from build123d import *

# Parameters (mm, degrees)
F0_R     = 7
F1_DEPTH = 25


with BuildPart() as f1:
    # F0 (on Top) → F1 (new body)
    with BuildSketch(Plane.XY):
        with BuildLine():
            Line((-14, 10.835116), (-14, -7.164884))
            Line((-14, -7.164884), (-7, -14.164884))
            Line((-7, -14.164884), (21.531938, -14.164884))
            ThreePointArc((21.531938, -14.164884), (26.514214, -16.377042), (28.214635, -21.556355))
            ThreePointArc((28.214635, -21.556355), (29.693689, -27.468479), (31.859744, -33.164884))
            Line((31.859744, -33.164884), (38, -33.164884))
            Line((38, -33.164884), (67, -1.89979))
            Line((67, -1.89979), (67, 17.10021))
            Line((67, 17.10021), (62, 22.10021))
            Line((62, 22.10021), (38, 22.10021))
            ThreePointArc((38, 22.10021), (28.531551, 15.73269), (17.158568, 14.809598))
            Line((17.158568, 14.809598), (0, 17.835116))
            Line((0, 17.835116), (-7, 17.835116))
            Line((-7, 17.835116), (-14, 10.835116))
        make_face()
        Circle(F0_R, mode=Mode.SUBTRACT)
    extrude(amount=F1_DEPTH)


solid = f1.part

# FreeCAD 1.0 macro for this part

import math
import FreeCAD as App
import Part
import Sketcher

V = App.Vector
Q = App.Units.Quantity

doc = App.newDocument("Part")
body = doc.addObject("PartDesign::Body", "Body")

# Sketch on XY plane
sketch1 = doc.addObject("Sketcher::SketchObject", "Sketch")
body.addObject(sketch1)
sketch1.AttachmentSupport = (doc.XY_Plane, [""])
sketch1.MapMode = "FlatFace"
sketch1.addGeometry([
    Part.LineSegment(V(-14, 11, 0), V(-14, -7, 0)),  # 0
    Part.LineSegment(V(-14, -7, 0), V(-7, -14, 0)),  # 1
    Part.LineSegment(V(-7, -14, 0), V(22, -14, 0)),  # 2
    Part.ArcOfCircle(Part.Circle(V(22, -21, 0), V(0, 0, 1), 7), math.radians(-6), math.radians(90)),  # 3
    Part.ArcOfCircle(Part.Circle(V(79, -12, 0), V(0, 0, 1), 52), math.radians(-169.34), math.radians(-155.79)),  # 4
    Part.LineSegment(V(32, -33, 0), V(38, -33, 0)),  # 5
    Part.LineSegment(V(38, -33, 0), V(67, -2, 0)),  # 6
    Part.LineSegment(V(67, -2, 0), V(67, 17, 0)),  # 7
    Part.LineSegment(V(67, 17, 0), V(62, 22, 0)),  # 8
    Part.LineSegment(V(62, 22, 0), V(38, 22, 0)),  # 9
    Part.ArcOfCircle(Part.Circle(V(21, 37, 0), V(0, 0, 1), 23), math.radians(-100), math.radians(-41)),  # 10
    Part.LineSegment(V(17, 15, 0), V(0, 18, 0)),  # 11
    Part.LineSegment(V(0, 18, 0), V(-7, 18, 0)),  # 12
    Part.LineSegment(V(-7, 18, 0), V(-14, 11, 0)),  # 13
    Part.Circle(V(0, 0, 0), V(0, 0, 1), 7),  # 14
], False)
sketch1.addConstraint([
    Sketcher.Constraint("Coincident", 0, 2, 1, 1),
    Sketcher.Constraint("Coincident", 1, 2, 2, 1),
    Sketcher.Constraint("Tangent", 2, 2, 3, 2),
    Sketcher.Constraint("Coincident", 3, 1, 4, 1),
    Sketcher.Constraint("Coincident", 4, 2, 5, 1),
    Sketcher.Constraint("Coincident", 5, 2, 6, 1),
    Sketcher.Constraint("Coincident", 6, 2, 7, 1),
    Sketcher.Constraint("Coincident", 7, 2, 8, 1),
    Sketcher.Constraint("Coincident", 8, 2, 9, 1),
    Sketcher.Constraint("Coincident", 9, 2, 10, 2),
    Sketcher.Constraint("Tangent", 10, 1, 11, 1),
    Sketcher.Constraint("Coincident", 11, 2, 12, 1),
    Sketcher.Constraint("Coincident", 12, 2, 13, 1),
    Sketcher.Constraint("Coincident", 13, 2, 0, 1),
    Sketcher.Constraint("Vertical", 0),
    Sketcher.Constraint("Horizontal", 2),
    Sketcher.Constraint("Horizontal", 5),
    Sketcher.Constraint("Vertical", 7),
    Sketcher.Constraint("Horizontal", 9),
    Sketcher.Constraint("Horizontal", 12),
    Sketcher.Constraint("Coincident", 14, 3, -1, 1),
    Sketcher.Constraint("PointOnObject", 11, 2, -2),
    Sketcher.Constraint("Parallel", 1, 8),
    Sketcher.Constraint("Perpendicular", 8, 13),
    Sketcher.Constraint("Vertical", 5, 2, 9, 2),
    Sketcher.Constraint("Vertical", 1, 2, 12, 2),
    Sketcher.Constraint("Equal", 1, 13),
    Sketcher.Constraint("Diameter", 14, 14.0),
    Sketcher.Constraint("DistanceX", 9, 2, 9, 1, 24.0),
    Sketcher.Constraint("DistanceX", 12, 2, 12, 1, 7.0),
    Sketcher.Constraint("DistanceY", 0, 2, 0, 1, 18.0),
    Sketcher.Constraint("DistanceY", 7, 1, 7, 2, 19.0),
    Sketcher.Constraint("Angle", 11, Q("170.000002 deg")),
    Sketcher.Constraint("DistanceX", 0, 2, -1, 1, 14.0),
    Sketcher.Constraint("DistanceX", -1, 1, 5, 2, 38.0),
    Sketcher.Constraint("DistanceX", -1, 1, 6, 2, 67.0),
    Sketcher.Constraint("DistanceY", 4, 2, 2, 2, 19.0),
    Sketcher.Constraint("Radius", 3, 6.716679),
    Sketcher.Constraint("Radius", 10, 22.572531),
    Sketcher.Constraint("Radius", 4, 51.579242),
    Sketcher.Constraint("DistanceX", 2, 1, 2, 2, 28.531938),
    Sketcher.Constraint("DistanceY", -1, 1, 10, 3, 37.039202),
    Sketcher.Constraint("DistanceX", 5, 1, 5, 2, 6.140256),
    Sketcher.Constraint("DistanceY", 4, 3, -1, 1, 12.016328),
    Sketcher.Constraint("DistanceY", 6, 2, -1, 1, 1.89979),
])
pad1 = doc.addObject("PartDesign::Pad", "Pad")
body.addObject(pad1)
pad1.Profile = sketch1
pad1.Length = 25

doc.recompute()
